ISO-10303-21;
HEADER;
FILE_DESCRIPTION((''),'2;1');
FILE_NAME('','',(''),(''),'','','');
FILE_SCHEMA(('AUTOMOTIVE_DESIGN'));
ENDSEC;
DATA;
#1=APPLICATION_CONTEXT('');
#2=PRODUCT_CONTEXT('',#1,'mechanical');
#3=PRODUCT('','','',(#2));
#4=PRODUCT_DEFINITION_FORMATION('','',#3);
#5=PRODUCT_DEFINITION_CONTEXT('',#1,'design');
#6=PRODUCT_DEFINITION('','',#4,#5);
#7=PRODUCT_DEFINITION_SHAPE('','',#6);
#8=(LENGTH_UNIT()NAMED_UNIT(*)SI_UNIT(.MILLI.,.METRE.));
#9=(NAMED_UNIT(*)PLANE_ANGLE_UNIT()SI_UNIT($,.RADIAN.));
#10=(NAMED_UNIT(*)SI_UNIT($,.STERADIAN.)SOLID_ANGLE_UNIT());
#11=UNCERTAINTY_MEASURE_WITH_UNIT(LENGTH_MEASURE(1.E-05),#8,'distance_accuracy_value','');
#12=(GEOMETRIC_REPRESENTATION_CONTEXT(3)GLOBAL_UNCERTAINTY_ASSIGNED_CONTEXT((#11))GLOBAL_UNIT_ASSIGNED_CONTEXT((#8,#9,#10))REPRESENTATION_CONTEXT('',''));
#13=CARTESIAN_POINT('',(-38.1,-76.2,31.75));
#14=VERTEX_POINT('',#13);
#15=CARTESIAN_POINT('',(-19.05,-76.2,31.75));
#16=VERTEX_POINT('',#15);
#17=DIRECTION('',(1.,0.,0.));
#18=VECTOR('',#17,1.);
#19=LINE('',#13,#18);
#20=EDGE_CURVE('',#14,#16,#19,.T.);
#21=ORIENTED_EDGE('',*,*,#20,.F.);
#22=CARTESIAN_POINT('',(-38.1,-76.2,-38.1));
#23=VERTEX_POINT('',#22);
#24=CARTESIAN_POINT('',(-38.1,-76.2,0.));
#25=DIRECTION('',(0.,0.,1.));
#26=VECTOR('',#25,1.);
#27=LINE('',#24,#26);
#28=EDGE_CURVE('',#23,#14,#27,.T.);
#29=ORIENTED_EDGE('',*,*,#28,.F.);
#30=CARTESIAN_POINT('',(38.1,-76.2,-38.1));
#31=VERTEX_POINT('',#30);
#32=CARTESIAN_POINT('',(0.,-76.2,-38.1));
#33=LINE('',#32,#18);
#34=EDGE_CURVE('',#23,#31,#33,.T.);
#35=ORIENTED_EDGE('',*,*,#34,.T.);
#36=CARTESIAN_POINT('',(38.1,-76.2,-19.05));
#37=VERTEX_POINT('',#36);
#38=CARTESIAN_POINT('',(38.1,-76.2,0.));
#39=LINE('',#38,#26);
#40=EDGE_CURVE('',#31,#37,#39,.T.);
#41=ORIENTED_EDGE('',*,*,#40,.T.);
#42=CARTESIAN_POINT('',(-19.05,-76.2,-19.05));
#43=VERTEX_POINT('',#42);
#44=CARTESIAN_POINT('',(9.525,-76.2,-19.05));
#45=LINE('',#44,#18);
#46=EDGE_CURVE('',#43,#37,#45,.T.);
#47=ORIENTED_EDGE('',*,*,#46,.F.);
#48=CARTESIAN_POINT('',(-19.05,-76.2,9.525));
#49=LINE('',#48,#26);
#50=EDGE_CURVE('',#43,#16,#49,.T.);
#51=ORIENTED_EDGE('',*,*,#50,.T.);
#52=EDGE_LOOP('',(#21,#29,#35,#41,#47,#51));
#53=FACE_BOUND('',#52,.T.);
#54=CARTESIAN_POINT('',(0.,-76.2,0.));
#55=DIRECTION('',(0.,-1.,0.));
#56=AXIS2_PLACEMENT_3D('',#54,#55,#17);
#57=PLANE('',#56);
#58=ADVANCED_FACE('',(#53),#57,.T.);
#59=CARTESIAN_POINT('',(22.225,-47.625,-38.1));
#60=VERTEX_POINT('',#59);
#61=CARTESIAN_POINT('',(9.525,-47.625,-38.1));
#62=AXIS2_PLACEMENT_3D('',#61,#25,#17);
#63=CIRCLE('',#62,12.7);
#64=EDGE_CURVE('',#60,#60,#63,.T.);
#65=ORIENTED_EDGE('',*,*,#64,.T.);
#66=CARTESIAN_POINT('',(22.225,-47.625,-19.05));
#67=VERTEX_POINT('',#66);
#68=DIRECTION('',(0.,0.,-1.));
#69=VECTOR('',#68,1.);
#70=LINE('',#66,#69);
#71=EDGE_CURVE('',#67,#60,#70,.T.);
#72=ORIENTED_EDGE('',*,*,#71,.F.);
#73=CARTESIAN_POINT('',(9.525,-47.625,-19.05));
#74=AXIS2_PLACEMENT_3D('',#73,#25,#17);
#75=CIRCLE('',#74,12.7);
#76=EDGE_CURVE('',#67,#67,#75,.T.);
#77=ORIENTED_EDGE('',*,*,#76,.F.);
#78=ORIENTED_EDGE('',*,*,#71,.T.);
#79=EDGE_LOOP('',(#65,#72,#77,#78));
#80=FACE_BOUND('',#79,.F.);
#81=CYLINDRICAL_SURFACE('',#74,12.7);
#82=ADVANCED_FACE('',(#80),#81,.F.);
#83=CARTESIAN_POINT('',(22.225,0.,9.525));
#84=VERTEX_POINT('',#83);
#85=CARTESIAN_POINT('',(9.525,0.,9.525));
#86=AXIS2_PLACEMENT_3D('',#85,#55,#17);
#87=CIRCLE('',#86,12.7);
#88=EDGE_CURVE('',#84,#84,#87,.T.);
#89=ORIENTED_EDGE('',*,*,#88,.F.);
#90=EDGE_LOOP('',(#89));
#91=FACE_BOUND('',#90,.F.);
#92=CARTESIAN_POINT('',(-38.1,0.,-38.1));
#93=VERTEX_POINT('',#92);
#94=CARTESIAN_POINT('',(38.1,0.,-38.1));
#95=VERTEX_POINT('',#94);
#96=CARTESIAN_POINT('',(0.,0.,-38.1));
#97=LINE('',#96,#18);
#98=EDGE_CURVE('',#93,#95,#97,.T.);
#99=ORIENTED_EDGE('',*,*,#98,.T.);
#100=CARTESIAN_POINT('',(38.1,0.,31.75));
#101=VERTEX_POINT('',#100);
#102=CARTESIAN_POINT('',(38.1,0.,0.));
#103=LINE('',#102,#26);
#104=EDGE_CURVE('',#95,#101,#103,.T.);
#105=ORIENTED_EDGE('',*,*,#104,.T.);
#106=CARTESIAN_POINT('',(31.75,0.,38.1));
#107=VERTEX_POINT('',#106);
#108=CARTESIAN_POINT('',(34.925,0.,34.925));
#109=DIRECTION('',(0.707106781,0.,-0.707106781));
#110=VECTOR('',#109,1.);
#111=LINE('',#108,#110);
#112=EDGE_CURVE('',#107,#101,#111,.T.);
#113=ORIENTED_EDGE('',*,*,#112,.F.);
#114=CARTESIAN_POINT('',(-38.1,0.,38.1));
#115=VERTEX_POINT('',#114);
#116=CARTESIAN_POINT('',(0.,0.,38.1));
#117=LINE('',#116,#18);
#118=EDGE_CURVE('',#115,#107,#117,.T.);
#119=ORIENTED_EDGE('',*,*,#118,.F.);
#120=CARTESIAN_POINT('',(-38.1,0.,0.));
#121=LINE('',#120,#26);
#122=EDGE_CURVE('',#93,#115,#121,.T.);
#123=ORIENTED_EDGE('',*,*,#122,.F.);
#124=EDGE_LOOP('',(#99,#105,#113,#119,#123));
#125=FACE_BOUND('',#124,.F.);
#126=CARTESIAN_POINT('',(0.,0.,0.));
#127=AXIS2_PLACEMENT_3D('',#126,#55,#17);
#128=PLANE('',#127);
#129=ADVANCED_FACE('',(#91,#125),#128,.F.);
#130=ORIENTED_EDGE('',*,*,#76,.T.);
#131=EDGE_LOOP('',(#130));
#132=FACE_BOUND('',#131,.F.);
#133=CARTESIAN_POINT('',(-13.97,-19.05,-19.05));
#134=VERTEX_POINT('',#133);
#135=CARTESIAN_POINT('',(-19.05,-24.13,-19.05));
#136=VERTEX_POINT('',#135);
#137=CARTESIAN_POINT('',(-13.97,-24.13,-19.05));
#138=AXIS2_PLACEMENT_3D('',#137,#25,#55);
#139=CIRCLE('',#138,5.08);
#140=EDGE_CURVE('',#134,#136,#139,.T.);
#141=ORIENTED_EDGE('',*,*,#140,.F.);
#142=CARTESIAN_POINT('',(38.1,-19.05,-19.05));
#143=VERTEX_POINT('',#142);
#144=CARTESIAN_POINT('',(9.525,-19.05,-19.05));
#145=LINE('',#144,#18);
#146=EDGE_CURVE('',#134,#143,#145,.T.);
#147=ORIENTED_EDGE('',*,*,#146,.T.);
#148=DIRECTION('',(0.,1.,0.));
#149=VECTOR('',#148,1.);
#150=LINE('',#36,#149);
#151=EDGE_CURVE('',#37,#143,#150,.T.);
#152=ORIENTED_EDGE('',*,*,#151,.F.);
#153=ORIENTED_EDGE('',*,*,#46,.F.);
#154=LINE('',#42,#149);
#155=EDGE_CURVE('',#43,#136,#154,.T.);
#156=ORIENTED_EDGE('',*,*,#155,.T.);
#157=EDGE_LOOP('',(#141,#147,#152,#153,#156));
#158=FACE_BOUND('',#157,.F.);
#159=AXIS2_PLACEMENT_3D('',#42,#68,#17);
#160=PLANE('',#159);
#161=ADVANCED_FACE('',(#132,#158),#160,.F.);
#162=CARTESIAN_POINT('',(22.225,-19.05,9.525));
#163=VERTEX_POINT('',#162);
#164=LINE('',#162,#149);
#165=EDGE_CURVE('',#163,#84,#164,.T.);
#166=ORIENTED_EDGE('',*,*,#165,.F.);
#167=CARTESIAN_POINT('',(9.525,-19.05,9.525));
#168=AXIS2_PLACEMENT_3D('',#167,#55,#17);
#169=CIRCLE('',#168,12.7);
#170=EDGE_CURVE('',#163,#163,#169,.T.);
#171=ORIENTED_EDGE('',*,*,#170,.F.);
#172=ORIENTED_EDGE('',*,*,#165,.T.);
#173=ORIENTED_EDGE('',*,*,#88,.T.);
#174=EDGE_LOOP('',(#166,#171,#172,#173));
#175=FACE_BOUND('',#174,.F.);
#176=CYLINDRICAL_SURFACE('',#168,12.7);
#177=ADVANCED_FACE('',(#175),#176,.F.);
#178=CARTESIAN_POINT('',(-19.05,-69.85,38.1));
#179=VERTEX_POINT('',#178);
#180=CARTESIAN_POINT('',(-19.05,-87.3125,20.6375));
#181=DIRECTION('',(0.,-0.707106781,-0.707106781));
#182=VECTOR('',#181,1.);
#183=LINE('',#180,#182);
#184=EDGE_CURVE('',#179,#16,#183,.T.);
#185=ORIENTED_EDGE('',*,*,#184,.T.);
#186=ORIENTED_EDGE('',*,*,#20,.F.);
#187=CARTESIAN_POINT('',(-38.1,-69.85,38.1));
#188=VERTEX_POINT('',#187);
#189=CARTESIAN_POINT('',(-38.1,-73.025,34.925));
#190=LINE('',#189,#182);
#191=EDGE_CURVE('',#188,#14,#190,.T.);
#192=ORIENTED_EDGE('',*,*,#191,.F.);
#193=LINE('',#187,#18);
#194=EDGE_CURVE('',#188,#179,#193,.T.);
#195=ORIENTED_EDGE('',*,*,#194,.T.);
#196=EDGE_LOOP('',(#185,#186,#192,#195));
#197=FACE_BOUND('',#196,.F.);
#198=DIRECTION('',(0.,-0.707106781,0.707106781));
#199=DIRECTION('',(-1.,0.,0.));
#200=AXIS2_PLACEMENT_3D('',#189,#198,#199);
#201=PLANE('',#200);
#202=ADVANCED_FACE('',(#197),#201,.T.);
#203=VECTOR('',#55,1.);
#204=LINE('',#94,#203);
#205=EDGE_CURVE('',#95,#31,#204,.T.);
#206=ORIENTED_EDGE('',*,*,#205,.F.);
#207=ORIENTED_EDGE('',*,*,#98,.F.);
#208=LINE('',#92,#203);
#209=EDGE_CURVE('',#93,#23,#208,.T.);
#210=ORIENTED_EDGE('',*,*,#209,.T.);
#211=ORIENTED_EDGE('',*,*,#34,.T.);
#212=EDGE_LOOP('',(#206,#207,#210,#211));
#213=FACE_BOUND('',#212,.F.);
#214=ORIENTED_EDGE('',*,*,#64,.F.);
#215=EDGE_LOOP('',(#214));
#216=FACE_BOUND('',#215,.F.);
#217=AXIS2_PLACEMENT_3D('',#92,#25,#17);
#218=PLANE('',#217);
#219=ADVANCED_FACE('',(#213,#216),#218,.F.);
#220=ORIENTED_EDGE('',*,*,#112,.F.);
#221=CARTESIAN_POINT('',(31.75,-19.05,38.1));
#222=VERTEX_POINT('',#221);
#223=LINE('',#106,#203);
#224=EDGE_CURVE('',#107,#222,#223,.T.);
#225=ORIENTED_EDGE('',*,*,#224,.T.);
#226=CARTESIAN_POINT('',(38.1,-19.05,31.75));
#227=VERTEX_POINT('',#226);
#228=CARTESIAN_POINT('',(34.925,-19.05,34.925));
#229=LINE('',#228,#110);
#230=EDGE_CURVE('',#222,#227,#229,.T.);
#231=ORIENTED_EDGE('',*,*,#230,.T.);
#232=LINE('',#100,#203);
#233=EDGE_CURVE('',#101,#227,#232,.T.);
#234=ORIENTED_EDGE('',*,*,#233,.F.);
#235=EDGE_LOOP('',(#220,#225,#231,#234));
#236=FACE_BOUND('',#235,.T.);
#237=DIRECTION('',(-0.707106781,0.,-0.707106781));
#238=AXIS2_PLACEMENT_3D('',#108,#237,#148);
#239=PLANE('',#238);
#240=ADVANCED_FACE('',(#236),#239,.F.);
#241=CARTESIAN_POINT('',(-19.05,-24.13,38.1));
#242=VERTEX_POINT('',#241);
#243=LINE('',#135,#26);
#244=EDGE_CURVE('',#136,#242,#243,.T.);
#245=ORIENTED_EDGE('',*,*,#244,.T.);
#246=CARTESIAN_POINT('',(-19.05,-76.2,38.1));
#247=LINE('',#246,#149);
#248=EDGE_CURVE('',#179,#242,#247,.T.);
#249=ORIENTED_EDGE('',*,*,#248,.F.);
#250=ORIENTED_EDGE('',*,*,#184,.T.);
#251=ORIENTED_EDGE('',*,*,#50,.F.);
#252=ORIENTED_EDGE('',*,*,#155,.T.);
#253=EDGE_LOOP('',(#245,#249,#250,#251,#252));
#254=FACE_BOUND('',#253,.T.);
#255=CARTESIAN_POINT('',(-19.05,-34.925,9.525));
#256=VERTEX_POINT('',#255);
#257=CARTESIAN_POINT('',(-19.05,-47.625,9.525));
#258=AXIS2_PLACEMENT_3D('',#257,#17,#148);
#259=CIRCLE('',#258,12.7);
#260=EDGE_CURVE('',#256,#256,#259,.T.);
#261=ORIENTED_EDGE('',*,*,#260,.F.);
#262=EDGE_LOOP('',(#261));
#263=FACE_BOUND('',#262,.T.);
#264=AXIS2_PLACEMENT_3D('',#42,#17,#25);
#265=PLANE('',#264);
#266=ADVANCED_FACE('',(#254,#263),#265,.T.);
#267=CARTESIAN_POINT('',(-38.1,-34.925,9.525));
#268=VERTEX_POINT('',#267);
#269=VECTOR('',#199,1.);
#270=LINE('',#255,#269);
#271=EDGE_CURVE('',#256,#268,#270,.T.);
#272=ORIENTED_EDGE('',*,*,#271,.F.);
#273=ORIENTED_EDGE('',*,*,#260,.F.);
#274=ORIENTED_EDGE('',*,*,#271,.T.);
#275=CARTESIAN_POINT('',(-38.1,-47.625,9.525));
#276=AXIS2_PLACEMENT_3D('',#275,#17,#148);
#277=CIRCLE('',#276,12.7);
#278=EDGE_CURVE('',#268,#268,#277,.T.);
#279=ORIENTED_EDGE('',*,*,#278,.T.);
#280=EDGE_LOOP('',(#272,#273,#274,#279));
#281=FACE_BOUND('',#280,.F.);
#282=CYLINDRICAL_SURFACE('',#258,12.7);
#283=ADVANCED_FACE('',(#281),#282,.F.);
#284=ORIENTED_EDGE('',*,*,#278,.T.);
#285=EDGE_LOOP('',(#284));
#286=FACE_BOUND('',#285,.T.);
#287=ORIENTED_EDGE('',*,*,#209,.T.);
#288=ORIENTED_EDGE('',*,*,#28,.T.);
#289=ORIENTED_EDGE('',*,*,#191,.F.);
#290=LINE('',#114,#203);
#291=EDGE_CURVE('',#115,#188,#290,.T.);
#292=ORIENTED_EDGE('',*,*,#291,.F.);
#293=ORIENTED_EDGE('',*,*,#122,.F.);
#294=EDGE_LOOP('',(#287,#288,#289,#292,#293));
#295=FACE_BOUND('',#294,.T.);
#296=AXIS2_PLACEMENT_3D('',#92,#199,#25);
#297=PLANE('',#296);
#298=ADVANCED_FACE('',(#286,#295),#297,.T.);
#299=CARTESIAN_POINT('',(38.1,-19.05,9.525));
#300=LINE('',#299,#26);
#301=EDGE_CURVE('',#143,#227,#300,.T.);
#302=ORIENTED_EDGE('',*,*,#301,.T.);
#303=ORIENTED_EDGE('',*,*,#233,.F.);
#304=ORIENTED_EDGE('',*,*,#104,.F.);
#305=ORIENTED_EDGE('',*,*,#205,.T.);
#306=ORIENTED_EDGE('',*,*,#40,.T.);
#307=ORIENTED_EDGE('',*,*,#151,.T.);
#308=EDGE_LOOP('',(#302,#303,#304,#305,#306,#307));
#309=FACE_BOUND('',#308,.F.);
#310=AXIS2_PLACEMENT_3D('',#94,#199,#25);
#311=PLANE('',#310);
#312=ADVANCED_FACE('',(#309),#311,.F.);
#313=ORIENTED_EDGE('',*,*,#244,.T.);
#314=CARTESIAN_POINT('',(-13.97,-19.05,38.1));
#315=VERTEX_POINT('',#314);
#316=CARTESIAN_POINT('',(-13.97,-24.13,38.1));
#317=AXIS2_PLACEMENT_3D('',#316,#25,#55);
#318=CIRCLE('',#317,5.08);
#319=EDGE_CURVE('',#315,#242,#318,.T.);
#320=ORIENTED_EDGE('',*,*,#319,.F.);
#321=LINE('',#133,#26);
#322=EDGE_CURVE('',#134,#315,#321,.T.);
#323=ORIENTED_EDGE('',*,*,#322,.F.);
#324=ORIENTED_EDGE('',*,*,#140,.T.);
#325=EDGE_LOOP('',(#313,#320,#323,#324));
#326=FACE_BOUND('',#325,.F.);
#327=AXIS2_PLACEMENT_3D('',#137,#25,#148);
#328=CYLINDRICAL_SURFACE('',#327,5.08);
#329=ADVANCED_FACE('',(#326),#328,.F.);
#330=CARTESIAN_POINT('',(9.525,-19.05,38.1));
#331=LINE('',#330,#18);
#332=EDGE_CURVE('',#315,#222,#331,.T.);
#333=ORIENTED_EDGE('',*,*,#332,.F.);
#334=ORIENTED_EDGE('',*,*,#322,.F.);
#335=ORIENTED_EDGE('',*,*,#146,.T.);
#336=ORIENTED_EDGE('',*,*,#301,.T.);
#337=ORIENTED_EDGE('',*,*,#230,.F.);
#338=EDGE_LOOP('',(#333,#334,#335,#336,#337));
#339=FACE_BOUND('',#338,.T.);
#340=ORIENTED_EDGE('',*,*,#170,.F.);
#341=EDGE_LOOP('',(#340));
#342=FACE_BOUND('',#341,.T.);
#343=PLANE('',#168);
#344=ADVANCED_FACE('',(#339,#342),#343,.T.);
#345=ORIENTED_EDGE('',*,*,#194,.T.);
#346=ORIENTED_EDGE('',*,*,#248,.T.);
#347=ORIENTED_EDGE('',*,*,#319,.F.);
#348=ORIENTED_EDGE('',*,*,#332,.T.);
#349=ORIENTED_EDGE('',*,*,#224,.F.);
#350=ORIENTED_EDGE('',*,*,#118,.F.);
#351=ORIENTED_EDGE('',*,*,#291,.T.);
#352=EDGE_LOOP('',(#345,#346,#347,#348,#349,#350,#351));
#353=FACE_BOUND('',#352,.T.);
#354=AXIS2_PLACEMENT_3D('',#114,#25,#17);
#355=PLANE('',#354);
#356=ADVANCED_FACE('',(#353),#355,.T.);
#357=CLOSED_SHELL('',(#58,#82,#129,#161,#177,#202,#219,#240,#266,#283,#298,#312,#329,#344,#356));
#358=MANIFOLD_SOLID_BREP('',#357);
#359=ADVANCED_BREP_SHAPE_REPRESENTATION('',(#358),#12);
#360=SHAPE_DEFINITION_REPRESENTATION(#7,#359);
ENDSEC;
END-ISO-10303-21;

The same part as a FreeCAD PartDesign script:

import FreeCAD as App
import Part
import Sketcher
from FreeCAD import Vector
Q = App.Units.Quantity


def edges_at(feature, points):
    """Names of the edges that pass closest to the given points."""
    edges = feature.Shape.Edges
    near = lambda p: min(range(len(edges)), key=lambda i: edges[i].distToShape(Part.Vertex(*p))[0])
    return sorted({f"Edge{near(p) + 1}" for p in points})


def add_polygon(sketch, points):
    """Adds a closed chain of lines whose ends are joined by coincident constraints."""
    first, n = sketch.GeometryCount, len(points)
    for a, b in zip(points, points[1:] + points[:1]):
        sketch.addGeometry(Part.LineSegment(App.Vector(*a, 0), App.Vector(*b, 0)), False)
    for i in range(n):
        sketch.addConstraint(Sketcher.Constraint("Coincident", first + i, 2, first + (i + 1) % n, 1))

doc = App.newDocument("Part")
body = doc.addObject("PartDesign::Body", "Body")

# Sketch on XZ plane
sketch1 = body.newObject("Sketcher::SketchObject", "Sketch")
sketch1.AttachmentSupport = (doc.getObject("XZ_Plane"), [""])
sketch1.MapMode = "FlatFace"
add_polygon(sketch1, [(-38, 38), (-38, -38), (38, -38), (38, 38)])  # lines 0-3
sketch1.addConstraint(Sketcher.Constraint("Vertical", 0))
sketch1.addConstraint(Sketcher.Constraint("Horizontal", 1))
sketch1.addConstraint(Sketcher.Constraint("Vertical", 2))
sketch1.addConstraint(Sketcher.Constraint("Horizontal", 3))
sketch1.addConstraint(Sketcher.Constraint("Symmetric", 0, 2, 2, 2, -1, 1))
sketch1.addConstraint(Sketcher.Constraint("Equal", 3, 0))
sketch1.addConstraint(Sketcher.Constraint("DistanceX", 1, 1, 1, 2, Q("3 in")))
pad1 = body.newObject("PartDesign::Pad", "Pad")
pad1.Profile = sketch1
pad1.Length = Q("3 in")

# Sketch on XZ plane
sketch2 = body.newObject("Sketcher::SketchObject", "Sketch001")
sketch2.AttachmentSupport = (doc.getObject("XZ_Plane"), [""])
sketch2.MapMode = "FlatFace"
sketch2.AttachmentOffset = App.Placement(Vector(0, 0, 3 * 25.4), App.Rotation())
add_polygon(sketch2, [(-19, 38), (-19, -19), (38, -19), (38, 38)])  # lines 0-3
sketch2.addConstraint(Sketcher.Constraint("Vertical", 0))
sketch2.addConstraint(Sketcher.Constraint("Horizontal", 1))
sketch2.addConstraint(Sketcher.Constraint("Vertical", 2))
sketch2.addConstraint(Sketcher.Constraint("Horizontal", 3))
sketch2.addConstraint(Sketcher.Constraint("Equal", 3, 0))
sketch2.addConstraint(Sketcher.Constraint("DistanceX", 1, 1, 1, 2, Q("2.25 in")))
sketch2.addConstraint(Sketcher.Constraint("DistanceX", -1, 1, 1, 2, Q("1.5 in")))
sketch2.addConstraint(Sketcher.Constraint("DistanceY", -1, 1, 2, 2, Q("1.5 in")))
pocket1 = body.newObject("PartDesign::Pocket", "Pocket")
pocket1.Profile = sketch2
pocket1.Length = Q("2.25 in")
doc.recompute()

chamfer = body.newObject("PartDesign::Chamfer", "Chamfer")
chamfer.Base = (pocket1, edges_at(pocket1, [(-28.575, -76.2, 38.1)]))
chamfer.Size = Q("0.25 in")
doc.recompute()

chamfer2 = body.newObject("PartDesign::Chamfer", "Chamfer001")
chamfer2.Base = (chamfer, edges_at(chamfer, [(38.1, -9.525, 38.1)]))
chamfer2.Size = Q("0.25 in")
doc.recompute()

fillet = body.newObject("PartDesign::Fillet", "Fillet")
fillet.Base = (chamfer2, edges_at(chamfer2, [(-19.05, -19.05, 9.525)]))
fillet.Radius = Q("0.2 in")

# Sketch on YZ plane
sketch3 = body.newObject("Sketcher::SketchObject", "Sketch002")
sketch3.AttachmentSupport = (doc.getObject("YZ_Plane"), [""])
sketch3.MapMode = "FlatFace"
sketch3.AttachmentOffset = App.Placement(Vector(0, 0, -0.75 * 25.4), App.Rotation())
sketch3.addGeometry(Part.Circle(Vector(-48, 10, 0), Vector(0, 0, 1), 13), False)
sketch3.addConstraint(Sketcher.Constraint("Diameter", 0, Q("1 in")))
sketch3.addConstraint(Sketcher.Constraint("DistanceX", 0, 3, -1, 1, Q("1.875 in")))
sketch3.addConstraint(Sketcher.Constraint("DistanceY", -1, 1, 0, 3, Q("0.375 in")))
pocket2 = body.newObject("PartDesign::Pocket", "Pocket001")
pocket2.Profile = sketch3
pocket2.Length = Q("0.75 in")

# Sketch on XZ plane
sketch4 = body.newObject("Sketcher::SketchObject", "Sketch003")
sketch4.AttachmentSupport = (doc.getObject("XZ_Plane"), [""])
sketch4.MapMode = "FlatFace"
sketch4.AttachmentOffset = App.Placement(Vector(0, 0, 0.75 * 25.4), App.Rotation())
sketch4.addGeometry(Part.Circle(Vector(10, 10, 0), Vector(0, 0, 1), 13), False)
sketch4.addConstraint(Sketcher.Constraint("Diameter", 0, Q("1 in")))
sketch4.addConstraint(Sketcher.Constraint("DistanceX", -1, 1, 0, 3, Q("0.375 in")))
sketch4.addConstraint(Sketcher.Constraint("DistanceY", -1, 1, 0, 3, Q("0.375 in")))
pocket3 = body.newObject("PartDesign::Pocket", "Pocket002")
pocket3.Profile = sketch4
pocket3.Length = Q("0.75 in")

# Sketch on XY plane
sketch5 = body.newObject("Sketcher::SketchObject", "Sketch004")
sketch5.AttachmentSupport = (doc.getObject("XY_Plane"), [""])
sketch5.MapMode = "FlatFace"
sketch5.AttachmentOffset = App.Placement(Vector(0, 0, -0.75 * 25.4), App.Rotation())
sketch5.addGeometry(Part.Circle(Vector(10, -48, 0), Vector(0, 0, 1), 13), False)
sketch5.addConstraint(Sketcher.Constraint("Diameter", 0, Q("1 in")))
sketch5.addConstraint(Sketcher.Constraint("DistanceX", -1, 1, 0, 3, Q("0.375 in")))
sketch5.addConstraint(Sketcher.Constraint("DistanceY", 0, 3, -1, 1, Q("1.875 in")))
pocket4 = body.newObject("PartDesign::Pocket", "Pocket003")
pocket4.Profile = sketch5
pocket4.Length = Q("0.75 in")

doc.recompute()
